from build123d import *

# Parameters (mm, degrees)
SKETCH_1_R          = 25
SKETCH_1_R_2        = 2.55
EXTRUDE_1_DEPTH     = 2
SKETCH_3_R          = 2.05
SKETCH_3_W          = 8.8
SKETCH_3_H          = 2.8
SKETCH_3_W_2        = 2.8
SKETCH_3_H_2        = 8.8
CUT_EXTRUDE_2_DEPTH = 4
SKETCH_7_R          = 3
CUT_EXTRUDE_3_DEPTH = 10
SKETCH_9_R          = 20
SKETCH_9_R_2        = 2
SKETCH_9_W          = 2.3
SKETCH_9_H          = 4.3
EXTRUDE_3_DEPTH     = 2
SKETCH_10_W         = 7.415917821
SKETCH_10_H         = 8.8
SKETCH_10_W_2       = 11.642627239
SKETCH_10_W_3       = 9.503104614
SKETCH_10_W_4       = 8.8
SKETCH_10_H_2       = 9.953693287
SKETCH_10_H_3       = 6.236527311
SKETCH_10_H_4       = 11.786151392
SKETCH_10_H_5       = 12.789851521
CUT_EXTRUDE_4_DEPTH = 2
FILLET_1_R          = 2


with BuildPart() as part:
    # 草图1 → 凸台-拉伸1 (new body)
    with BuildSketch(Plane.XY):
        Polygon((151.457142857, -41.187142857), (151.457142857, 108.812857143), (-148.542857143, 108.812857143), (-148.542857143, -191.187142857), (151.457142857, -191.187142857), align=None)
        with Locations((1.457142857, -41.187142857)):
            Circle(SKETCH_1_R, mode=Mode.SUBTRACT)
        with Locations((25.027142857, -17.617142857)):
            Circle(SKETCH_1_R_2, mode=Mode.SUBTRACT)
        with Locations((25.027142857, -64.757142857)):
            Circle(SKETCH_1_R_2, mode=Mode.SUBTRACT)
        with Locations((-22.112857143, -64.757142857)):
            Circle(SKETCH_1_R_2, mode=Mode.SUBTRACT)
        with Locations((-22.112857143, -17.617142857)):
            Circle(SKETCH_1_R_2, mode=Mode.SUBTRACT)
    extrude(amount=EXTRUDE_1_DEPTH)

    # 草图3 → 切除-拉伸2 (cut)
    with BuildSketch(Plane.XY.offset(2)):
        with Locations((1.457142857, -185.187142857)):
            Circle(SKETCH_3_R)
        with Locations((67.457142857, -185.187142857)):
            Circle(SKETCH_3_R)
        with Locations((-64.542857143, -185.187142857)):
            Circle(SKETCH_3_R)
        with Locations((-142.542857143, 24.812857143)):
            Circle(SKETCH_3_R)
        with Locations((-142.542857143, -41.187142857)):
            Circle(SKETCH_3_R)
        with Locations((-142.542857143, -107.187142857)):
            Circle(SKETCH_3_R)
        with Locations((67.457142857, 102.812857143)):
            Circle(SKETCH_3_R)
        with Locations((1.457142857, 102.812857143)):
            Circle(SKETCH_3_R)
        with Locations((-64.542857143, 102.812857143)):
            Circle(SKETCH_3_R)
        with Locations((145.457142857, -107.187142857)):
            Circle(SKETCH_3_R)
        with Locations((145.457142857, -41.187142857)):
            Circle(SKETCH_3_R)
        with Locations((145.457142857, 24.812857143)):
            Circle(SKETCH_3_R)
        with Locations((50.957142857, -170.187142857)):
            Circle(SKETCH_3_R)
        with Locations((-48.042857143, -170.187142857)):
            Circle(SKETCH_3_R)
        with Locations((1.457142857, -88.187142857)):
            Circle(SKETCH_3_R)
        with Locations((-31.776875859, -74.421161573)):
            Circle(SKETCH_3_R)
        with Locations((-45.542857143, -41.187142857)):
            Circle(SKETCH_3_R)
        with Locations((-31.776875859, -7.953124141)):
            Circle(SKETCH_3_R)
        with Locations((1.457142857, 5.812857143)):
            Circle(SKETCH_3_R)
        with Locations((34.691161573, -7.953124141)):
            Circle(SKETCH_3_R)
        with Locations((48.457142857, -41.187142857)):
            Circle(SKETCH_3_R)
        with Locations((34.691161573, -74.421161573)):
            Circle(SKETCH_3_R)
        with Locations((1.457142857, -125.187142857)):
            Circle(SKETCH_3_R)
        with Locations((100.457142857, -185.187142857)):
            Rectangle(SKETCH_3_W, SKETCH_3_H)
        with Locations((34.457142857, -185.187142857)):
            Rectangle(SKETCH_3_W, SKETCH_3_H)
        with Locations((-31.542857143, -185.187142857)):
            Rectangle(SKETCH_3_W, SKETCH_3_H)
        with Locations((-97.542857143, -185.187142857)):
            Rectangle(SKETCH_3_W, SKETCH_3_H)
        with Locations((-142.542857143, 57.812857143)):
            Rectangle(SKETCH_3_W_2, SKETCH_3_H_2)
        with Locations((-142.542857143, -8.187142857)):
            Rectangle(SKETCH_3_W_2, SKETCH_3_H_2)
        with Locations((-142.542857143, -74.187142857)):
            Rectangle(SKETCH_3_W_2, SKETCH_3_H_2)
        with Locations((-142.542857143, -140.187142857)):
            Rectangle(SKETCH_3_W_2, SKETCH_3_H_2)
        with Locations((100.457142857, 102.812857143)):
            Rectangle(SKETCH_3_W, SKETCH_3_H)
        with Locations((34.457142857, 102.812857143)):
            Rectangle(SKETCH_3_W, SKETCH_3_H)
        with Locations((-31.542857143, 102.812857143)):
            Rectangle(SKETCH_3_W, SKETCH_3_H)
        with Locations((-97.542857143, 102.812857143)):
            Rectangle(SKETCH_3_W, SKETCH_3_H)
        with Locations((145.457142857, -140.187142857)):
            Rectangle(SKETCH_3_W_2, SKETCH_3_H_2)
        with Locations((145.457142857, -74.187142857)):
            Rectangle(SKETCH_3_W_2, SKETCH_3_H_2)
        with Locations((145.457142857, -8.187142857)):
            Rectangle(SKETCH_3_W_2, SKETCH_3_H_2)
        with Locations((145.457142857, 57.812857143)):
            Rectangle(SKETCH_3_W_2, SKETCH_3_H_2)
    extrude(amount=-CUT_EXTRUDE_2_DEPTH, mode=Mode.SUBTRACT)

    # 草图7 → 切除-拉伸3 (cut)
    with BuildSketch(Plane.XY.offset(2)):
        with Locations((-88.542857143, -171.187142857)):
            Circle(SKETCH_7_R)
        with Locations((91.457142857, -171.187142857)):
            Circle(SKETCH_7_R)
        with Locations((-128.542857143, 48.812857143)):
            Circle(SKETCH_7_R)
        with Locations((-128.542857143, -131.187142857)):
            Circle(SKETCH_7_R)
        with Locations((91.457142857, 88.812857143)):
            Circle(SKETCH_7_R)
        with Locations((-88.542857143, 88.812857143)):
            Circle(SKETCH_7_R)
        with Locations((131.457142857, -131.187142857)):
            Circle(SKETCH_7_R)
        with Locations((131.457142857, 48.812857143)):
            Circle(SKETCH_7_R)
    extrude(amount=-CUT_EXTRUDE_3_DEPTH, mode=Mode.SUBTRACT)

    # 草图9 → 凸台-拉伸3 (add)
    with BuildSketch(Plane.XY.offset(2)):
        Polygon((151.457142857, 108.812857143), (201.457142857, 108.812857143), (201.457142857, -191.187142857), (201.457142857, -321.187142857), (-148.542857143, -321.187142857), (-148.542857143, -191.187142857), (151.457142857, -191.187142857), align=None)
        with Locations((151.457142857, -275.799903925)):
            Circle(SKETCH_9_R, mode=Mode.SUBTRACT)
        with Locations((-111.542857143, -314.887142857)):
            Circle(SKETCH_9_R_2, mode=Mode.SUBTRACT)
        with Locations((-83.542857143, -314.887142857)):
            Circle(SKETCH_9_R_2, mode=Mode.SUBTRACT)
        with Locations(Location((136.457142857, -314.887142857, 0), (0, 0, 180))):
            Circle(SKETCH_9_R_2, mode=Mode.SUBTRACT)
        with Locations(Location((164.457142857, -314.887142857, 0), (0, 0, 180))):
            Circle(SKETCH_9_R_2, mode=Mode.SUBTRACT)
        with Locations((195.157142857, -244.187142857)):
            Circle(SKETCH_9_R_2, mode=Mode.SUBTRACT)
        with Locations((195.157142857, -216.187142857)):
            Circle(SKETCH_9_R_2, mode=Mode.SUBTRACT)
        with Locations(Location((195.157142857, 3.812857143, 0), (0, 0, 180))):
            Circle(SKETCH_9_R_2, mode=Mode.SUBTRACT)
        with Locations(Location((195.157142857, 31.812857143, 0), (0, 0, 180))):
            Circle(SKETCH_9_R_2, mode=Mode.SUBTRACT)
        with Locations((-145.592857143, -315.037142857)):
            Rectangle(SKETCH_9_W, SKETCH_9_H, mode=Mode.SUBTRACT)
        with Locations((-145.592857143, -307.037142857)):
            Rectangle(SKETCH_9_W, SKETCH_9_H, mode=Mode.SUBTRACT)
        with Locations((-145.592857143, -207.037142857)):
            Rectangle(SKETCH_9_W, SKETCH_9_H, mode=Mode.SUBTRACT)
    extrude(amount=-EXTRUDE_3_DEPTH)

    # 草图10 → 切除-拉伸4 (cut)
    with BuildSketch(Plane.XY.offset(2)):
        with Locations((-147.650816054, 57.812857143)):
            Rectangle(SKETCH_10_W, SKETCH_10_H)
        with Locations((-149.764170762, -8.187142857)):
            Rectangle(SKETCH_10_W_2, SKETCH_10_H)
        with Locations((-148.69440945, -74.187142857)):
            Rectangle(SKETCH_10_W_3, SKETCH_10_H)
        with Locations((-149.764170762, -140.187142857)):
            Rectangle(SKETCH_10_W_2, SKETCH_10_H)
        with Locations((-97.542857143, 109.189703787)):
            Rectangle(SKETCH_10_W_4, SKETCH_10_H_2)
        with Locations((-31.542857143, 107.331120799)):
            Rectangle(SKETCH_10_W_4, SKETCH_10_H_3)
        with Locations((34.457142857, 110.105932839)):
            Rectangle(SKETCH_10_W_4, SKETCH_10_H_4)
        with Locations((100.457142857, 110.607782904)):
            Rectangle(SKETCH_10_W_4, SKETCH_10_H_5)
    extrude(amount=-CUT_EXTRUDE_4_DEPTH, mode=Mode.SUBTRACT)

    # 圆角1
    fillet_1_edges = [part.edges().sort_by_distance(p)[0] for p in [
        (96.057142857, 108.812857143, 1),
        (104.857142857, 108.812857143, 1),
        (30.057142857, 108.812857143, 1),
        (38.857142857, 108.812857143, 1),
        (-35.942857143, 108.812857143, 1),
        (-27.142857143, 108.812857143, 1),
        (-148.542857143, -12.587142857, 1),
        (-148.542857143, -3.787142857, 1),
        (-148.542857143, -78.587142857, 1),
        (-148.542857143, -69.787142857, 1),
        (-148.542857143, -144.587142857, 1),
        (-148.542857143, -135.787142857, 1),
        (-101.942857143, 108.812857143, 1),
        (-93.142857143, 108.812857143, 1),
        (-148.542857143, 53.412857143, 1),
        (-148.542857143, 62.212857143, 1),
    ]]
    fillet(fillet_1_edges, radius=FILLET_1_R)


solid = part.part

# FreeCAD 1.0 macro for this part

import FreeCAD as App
import Part
import Sketcher
from FreeCAD import Vector
Q = App.Units.Quantity


def edges_at(feature, points):
    """Names of the edges that pass closest to the given points."""
    edges = feature.Shape.Edges
    near = lambda p: min(range(len(edges)), key=lambda i: edges[i].distToShape(Part.Vertex(*p))[0])
    return sorted({f"Edge{near(p) + 1}" for p in points})


def add_polygon(sketch, points):
    """Adds a closed chain of lines whose ends are joined by coincident constraints."""
    first, n = sketch.GeometryCount, len(points)
    for a, b in zip(points, points[1:] + points[:1]):
        sketch.addGeometry(Part.LineSegment(App.Vector(*a, 0), App.Vector(*b, 0)), False)
    for i in range(n):
        sketch.addConstraint(Sketcher.Constraint("Coincident", first + i, 2, first + (i + 1) % n, 1))

doc = App.newDocument("Part")
body = doc.addObject("PartDesign::Body", "Body")

# Sketch on XY plane
sketch1 = doc.addObject("Sketcher::SketchObject", "Sketch")
body.addObject(sketch1)
sketch1.AttachmentSupport = (doc.XY_Plane, [""])
sketch1.MapMode = "FlatFace"
add_polygon(sketch1, [(151.457143, 108.812857), (-148.542857, 108.812857), (-148.542857, -191.187143), (151.457143, -191.187143)])  # lines 0-3
sketch1.addGeometry(Part.Circle(Vector(-22.112857, -64.757143, 0), Vector(0, 0, 1), 2.55), False)  # 4
sketch1.addGeometry(Part.Circle(Vector(25.027143, -64.757143, 0), Vector(0, 0, 1), 2.55), False)  # 5
sketch1.addGeometry(Part.Circle(Vector(1.457143, -41.187143, 0), Vector(0, 0, 1), 25), False)  # 6
sketch1.addGeometry(Part.Circle(Vector(-22.112857, -17.617143, 0), Vector(0, 0, 1), 2.55), False)  # 7
sketch1.addGeometry(Part.Circle(Vector(25.027143, -17.617143, 0), Vector(0, 0, 1), 2.55), False)  # 8
sketch1.addConstraint([
    Sketcher.Constraint("Horizontal", 0),
    Sketcher.Constraint("Vertical", 1),
    Sketcher.Constraint("Horizontal", 2),
    Sketcher.Constraint("Vertical", 3),
    Sketcher.Constraint("Equal", 4, 5),
    Sketcher.Constraint("Equal", 5, 7),
    Sketcher.Constraint("Equal", 7, 8),
    Sketcher.Constraint("Horizontal", 4, 3, 5, 3),
    Sketcher.Constraint("Horizontal", 7, 3, 8, 3),
    Sketcher.Constraint("Vertical", 4, 3, 7, 3),
    Sketcher.Constraint("Vertical", 5, 3, 8, 3),
    Sketcher.Constraint("Equal", 2, 1),
    Sketcher.Constraint("Diameter", 6, Q("50 mm")),
    Sketcher.Constraint("Diameter", 4, Q("5.1 mm")),
    Sketcher.Constraint("DistanceX", 0, 2, 0, 1, Q("300 mm")),
    Sketcher.Constraint("DistanceX", 0, 2, 6, 3, Q("150 mm")),
    Sketcher.Constraint("DistanceY", 6, 3, 0, 2, Q("150 mm")),
    Sketcher.Constraint("DistanceX", 4, 3, 5, 3, Q("47.14 mm")),
    Sketcher.Constraint("DistanceX", 4, 3, 6, 3, Q("23.57 mm")),
    Sketcher.Constraint("DistanceY", 4, 3, 6, 3, Q("23.57 mm")),
    Sketcher.Constraint("DistanceY", 6, 3, 7, 3, Q("23.57 mm")),
    Sketcher.Constraint("DistanceX", 4, 3, -1, 1, Q("22.112857 mm")),
    Sketcher.Constraint("DistanceY", 4, 3, -1, 1, Q("64.757143 mm")),
])
pad1 = doc.addObject("PartDesign::Pad", "Pad")
body.addObject(pad1)
pad1.Profile = sketch1
pad1.Length = 2

# Sketch on XY plane
sketch2 = doc.addObject("Sketcher::SketchObject", "Sketch001")
body.addObject(sketch2)
sketch2.AttachmentSupport = (doc.XY_Plane, [""])
sketch2.MapMode = "FlatFace"
sketch2.AttachmentOffset = App.Placement(Vector(0, 0, 2), App.Rotation())
sketch2.addGeometry(Part.Circle(Vector(1.457143, -185.187143, 0), Vector(0, 0, 1), 2.05), False)  # 0
sketch2.addGeometry(Part.Circle(Vector(67.457143, -185.187143, 0), Vector(0, 0, 1), 2.05), False)  # 1
sketch2.addGeometry(Part.Circle(Vector(-64.542857, -185.187143, 0), Vector(0, 0, 1), 2.05), False)  # 2
sketch2.addGeometry(Part.Circle(Vector(-142.542857, 24.812857, 0), Vector(0, 0, 1), 2.05), False)  # 3
sketch2.addGeometry(Part.Circle(Vector(-142.542857, -41.187143, 0), Vector(0, 0, 1), 2.05), False)  # 4
sketch2.addGeometry(Part.Circle(Vector(-142.542857, -107.187143, 0), Vector(0, 0, 1), 2.05), False)  # 5
sketch2.addGeometry(Part.Circle(Vector(67.457143, 102.812857, 0), Vector(0, 0, 1), 2.05), False)  # 6
sketch2.addGeometry(Part.Circle(Vector(1.457143, 102.812857, 0), Vector(0, 0, 1), 2.05), False)  # 7
sketch2.addGeometry(Part.Circle(Vector(-64.542857, 102.812857, 0), Vector(0, 0, 1), 2.05), False)  # 8
sketch2.addGeometry(Part.Circle(Vector(145.457143, -107.187143, 0), Vector(0, 0, 1), 2.05), False)  # 9
sketch2.addGeometry(Part.Circle(Vector(145.457143, -41.187143, 0), Vector(0, 0, 1), 2.05), False)  # 10
sketch2.addGeometry(Part.Circle(Vector(145.457143, 24.812857, 0), Vector(0, 0, 1), 2.05), False)  # 11
sketch2.addGeometry(Part.Circle(Vector(50.957143, -170.187143, 0), Vector(0, 0, 1), 2.05), False)  # 12
sketch2.addGeometry(Part.Circle(Vector(-48.042857, -170.187143, 0), Vector(0, 0, 1), 2.05), False)  # 13
sketch2.addGeometry(Part.Circle(Vector(1.457143, -88.187143, 0), Vector(0, 0, 1), 2.05), False)  # 14
sketch2.addGeometry(Part.Circle(Vector(-31.776876, -74.421162, 0), Vector(0, 0, 1), 2.05), False)  # 15
sketch2.addGeometry(Part.Circle(Vector(-45.542857, -41.187143, 0), Vector(0, 0, 1), 2.05), False)  # 16
sketch2.addGeometry(Part.Circle(Vector(-31.776876, -7.953124, 0), Vector(0, 0, 1), 2.05), False)  # 17
sketch2.addGeometry(Part.Circle(Vector(1.457143, 5.812857, 0), Vector(0, 0, 1), 2.05), False)  # 18
sketch2.addGeometry(Part.Circle(Vector(34.691162, -7.953124, 0), Vector(0, 0, 1), 2.05), False)  # 19
sketch2.addGeometry(Part.Circle(Vector(48.457143, -41.187143, 0), Vector(0, 0, 1), 2.05), False)  # 20
sketch2.addGeometry(Part.Circle(Vector(34.691162, -74.421162, 0), Vector(0, 0, 1), 2.05), False)  # 21
sketch2.addGeometry(Part.Circle(Vector(1.457143, -125.187143, 0), Vector(0, 0, 1), 2.05), False)  # 22
add_polygon(sketch2, [(96.057143, -183.787143), (96.057143, -186.587143), (104.857143, -186.587143), (104.857143, -183.787143)])  # lines 23-26
add_polygon(sketch2, [(30.057143, -183.787143), (30.057143, -186.587143), (38.857143, -186.587143), (38.857143, -183.787143)])  # lines 27-30
add_polygon(sketch2, [(-35.942857, -183.787143), (-35.942857, -186.587143), (-27.142857, -186.587143), (-27.142857, -183.787143)])  # lines 31-34
add_polygon(sketch2, [(-101.942857, -183.787143), (-101.942857, -186.587143), (-93.142857, -186.587143), (-93.142857, -183.787143)])  # lines 35-38
add_polygon(sketch2, [(-143.942857, 62.212857), (-143.942857, 53.412857), (-141.142857, 53.412857), (-141.142857, 62.212857)])  # lines 39-42
add_polygon(sketch2, [(-143.942857, -3.787143), (-143.942857, -12.587143), (-141.142857, -12.587143), (-141.142857, -3.787143)])  # lines 43-46
add_polygon(sketch2, [(-143.942857, -69.787143), (-143.942857, -78.587143), (-141.142857, -78.587143), (-141.142857, -69.787143)])  # lines 47-50
add_polygon(sketch2, [(-143.942857, -135.787143), (-143.942857, -144.587143), (-141.142857, -144.587143), (-141.142857, -135.787143)])  # lines 51-54
add_polygon(sketch2, [(96.057143, 104.212857), (96.057143, 101.412857), (104.857143, 101.412857), (104.857143, 104.212857)])  # lines 55-58
add_polygon(sketch2, [(30.057143, 104.212857), (30.057143, 101.412857), (38.857143, 101.412857), (38.857143, 104.212857)])  # lines 59-62
add_polygon(sketch2, [(-35.942857, 104.212857), (-35.942857, 101.412857), (-27.142857, 101.412857), (-27.142857, 104.212857)])  # lines 63-66
add_polygon(sketch2, [(-101.942857, 104.212857), (-101.942857, 101.412857), (-93.142857, 101.412857), (-93.142857, 104.212857)])  # lines 67-70
add_polygon(sketch2, [(144.057143, -135.787143), (144.057143, -144.587143), (146.857143, -144.587143), (146.857143, -135.787143)])  # lines 71-74
add_polygon(sketch2, [(144.057143, -69.787143), (144.057143, -78.587143), (146.857143, -78.587143), (146.857143, -69.787143)])  # lines 75-78
add_polygon(sketch2, [(144.057143, -3.787143), (144.057143, -12.587143), (146.857143, -12.587143), (146.857143, -3.787143)])  # lines 79-82
add_polygon(sketch2, [(144.057143, 62.212857), (144.057143, 53.412857), (146.857143, 53.412857), (146.857143, 62.212857)])  # lines 83-86
sketch2.addConstraint([
    Sketcher.Constraint("Vertical", 23),
    Sketcher.Constraint("Horizontal", 24),
    Sketcher.Constraint("Vertical", 25),
    Sketcher.Constraint("Horizontal", 26),
    Sketcher.Constraint("Vertical", 27),
    Sketcher.Constraint("Horizontal", 28),
    Sketcher.Constraint("Vertical", 29),
    Sketcher.Constraint("Horizontal", 30),
    Sketcher.Constraint("Vertical", 31),
    Sketcher.Constraint("Horizontal", 32),
    Sketcher.Constraint("Vertical", 33),
    Sketcher.Constraint("Horizontal", 34),
    Sketcher.Constraint("Vertical", 35),
    Sketcher.Constraint("Horizontal", 36),
    Sketcher.Constraint("Vertical", 37),
    Sketcher.Constraint("Horizontal", 38),
    Sketcher.Constraint("Vertical", 39),
    Sketcher.Constraint("Horizontal", 40),
    Sketcher.Constraint("Vertical", 41),
    Sketcher.Constraint("Horizontal", 42),
    Sketcher.Constraint("Vertical", 43),
    Sketcher.Constraint("Horizontal", 44),
    Sketcher.Constraint("Vertical", 45),
    Sketcher.Constraint("Horizontal", 46),
    Sketcher.Constraint("Vertical", 47),
    Sketcher.Constraint("Horizontal", 48),
    Sketcher.Constraint("Vertical", 49),
    Sketcher.Constraint("Horizontal", 50),
    Sketcher.Constraint("Vertical", 51),
    Sketcher.Constraint("Horizontal", 52),
    Sketcher.Constraint("Vertical", 53),
    Sketcher.Constraint("Horizontal", 54),
    Sketcher.Constraint("Vertical", 55),
    Sketcher.Constraint("Horizontal", 56),
    Sketcher.Constraint("Vertical", 57),
    Sketcher.Constraint("Horizontal", 58),
    Sketcher.Constraint("Vertical", 59),
    Sketcher.Constraint("Horizontal", 60),
    Sketcher.Constraint("Vertical", 61),
    Sketcher.Constraint("Horizontal", 62),
    Sketcher.Constraint("Vertical", 63),
    Sketcher.Constraint("Horizontal", 64),
    Sketcher.Constraint("Vertical", 65),
    Sketcher.Constraint("Horizontal", 66),
    Sketcher.Constraint("Vertical", 67),
    Sketcher.Constraint("Horizontal", 68),
    Sketcher.Constraint("Vertical", 69),
    Sketcher.Constraint("Horizontal", 70),
    Sketcher.Constraint("Vertical", 71),
    Sketcher.Constraint("Horizontal", 72),
    Sketcher.Constraint("Vertical", 73),
    Sketcher.Constraint("Horizontal", 74),
    Sketcher.Constraint("Vertical", 75),
    Sketcher.Constraint("Horizontal", 76),
    Sketcher.Constraint("Vertical", 77),
    Sketcher.Constraint("Horizontal", 78),
    Sketcher.Constraint("Vertical", 79),
    Sketcher.Constraint("Horizontal", 80),
    Sketcher.Constraint("Vertical", 81),
    Sketcher.Constraint("Horizontal", 82),
    Sketcher.Constraint("Vertical", 83),
    Sketcher.Constraint("Horizontal", 84),
    Sketcher.Constraint("Vertical", 85),
    Sketcher.Constraint("Horizontal", 86),
    Sketcher.Constraint("Equal", 0, 1),
    Sketcher.Constraint("Equal", 1, 2),
    Sketcher.Constraint("Equal", 2, 3),
    Sketcher.Constraint("Equal", 3, 4),
    Sketcher.Constraint("Equal", 4, 5),
    Sketcher.Constraint("Equal", 5, 6),
    Sketcher.Constraint("Equal", 6, 7),
    Sketcher.Constraint("Equal", 7, 8),
    Sketcher.Constraint("Equal", 8, 9),
    Sketcher.Constraint("Equal", 9, 10),
    Sketcher.Constraint("Equal", 10, 11),
    Sketcher.Constraint("Equal", 11, 12),
    Sketcher.Constraint("Equal", 12, 13),
    Sketcher.Constraint("Equal", 13, 14),
    Sketcher.Constraint("Equal", 14, 15),
    Sketcher.Constraint("Equal", 15, 16),
    Sketcher.Constraint("Equal", 16, 17),
    Sketcher.Constraint("Equal", 17, 18),
    Sketcher.Constraint("Equal", 18, 19),
    Sketcher.Constraint("Equal", 19, 20),
    Sketcher.Constraint("Equal", 20, 21),
    Sketcher.Constraint("Equal", 21, 22),
    Sketcher.Constraint("Horizontal", 0, 3, 1, 3),
    Sketcher.Constraint("Horizontal", 1, 3, 2, 3),
    Sketcher.Constraint("Horizontal", 6, 3, 7, 3),
    Sketcher.Constraint("Horizontal", 7, 3, 8, 3),
    Sketcher.Constraint("Horizontal", 5, 3, 9, 3),
    Sketcher.Constraint("Horizontal", 4, 3, 10, 3),
    Sketcher.Constraint("Horizontal", 3, 3, 11, 3),
    Sketcher.Constraint("Horizontal", 12, 3, 13, 3),
    Sketcher.Constraint("Horizontal", 10, 3, 16, 3),
    Sketcher.Constraint("Horizontal", 17, 3, 19, 3),
    Sketcher.Constraint("Horizontal", 16, 3, 20, 3),
    Sketcher.Constraint("Horizontal", 15, 3, 21, 3),
    Sketcher.Constraint("Horizontal", 24, 2, 27, 2),
    Sketcher.Constraint("Horizontal", 26, 2, 29, 2),
    Sketcher.Constraint("Horizontal", 28, 2, 31, 2),
    Sketcher.Constraint("Horizontal", 30, 2, 33, 2),
    Sketcher.Constraint("Horizontal", 32, 2, 35, 2),
    Sketcher.Constraint("Horizontal", 34, 2, 37, 2),
    Sketcher.Constraint("Horizontal", 56, 2, 59, 2),
    Sketcher.Constraint("Horizontal", 58, 2, 61, 2),
    Sketcher.Constraint("Horizontal", 60, 2, 63, 2),
    Sketcher.Constraint("Horizontal", 62, 2, 65, 2),
    Sketcher.Constraint("Horizontal", 64, 2, 67, 2),
    Sketcher.Constraint("Horizontal", 66, 2, 69, 2),
    Sketcher.Constraint("Horizontal", 52, 2, 71, 2),
    Sketcher.Constraint("Horizontal", 54, 2, 73, 2),
    Sketcher.Constraint("Horizontal", 48, 2, 75, 2),
    Sketcher.Constraint("Horizontal", 50, 2, 77, 2),
    Sketcher.Constraint("Horizontal", 44, 2, 79, 2),
    Sketcher.Constraint("Horizontal", 46, 2, 81, 2),
    Sketcher.Constraint("Horizontal", 40, 2, 83, 2),
    Sketcher.Constraint("Horizontal", 42, 2, 85, 2),
    Sketcher.Constraint("Vertical", 3, 3, 4, 3),
    Sketcher.Constraint("Vertical", 4, 3, 5, 3),
    Sketcher.Constraint("Vertical", 1, 3, 6, 3),
    Sketcher.Constraint("Vertical", 0, 3, 7, 3),
    Sketcher.Constraint("Vertical", 2, 3, 8, 3),
    Sketcher.Constraint("Vertical", 9, 3, 10, 3),
    Sketcher.Constraint("Vertical", 10, 3, 11, 3),
    Sketcher.Constraint("Vertical", 7, 3, 14, 3),
    Sketcher.Constraint("Vertical", 15, 3, 17, 3),
    Sketcher.Constraint("Vertical", 14, 3, 18, 3),
    Sketcher.Constraint("Vertical", 19, 3, 21, 3),
    Sketcher.Constraint("Vertical", 18, 3, 22, 3),
    Sketcher.Constraint("Vertical", 42, 2, 43, 2),
    Sketcher.Constraint("Vertical", 41, 2, 44, 2),
    Sketcher.Constraint("Vertical", 46, 2, 47, 2),
    Sketcher.Constraint("Vertical", 45, 2, 48, 2),
    Sketcher.Constraint("Vertical", 50, 2, 51, 2),
    Sketcher.Constraint("Vertical", 49, 2, 52, 2),
    Sketcher.Constraint("Vertical", 26, 2, 55, 2),
    Sketcher.Constraint("Vertical", 25, 2, 56, 2),
    Sketcher.Constraint("Vertical", 30, 2, 59, 2),
    Sketcher.Constraint("Vertical", 29, 2, 60, 2),
    Sketcher.Constraint("Vertical", 34, 2, 63, 2),
    Sketcher.Constraint("Vertical", 33, 2, 64, 2),
    Sketcher.Constraint("Vertical", 38, 2, 67, 2),
    Sketcher.Constraint("Vertical", 37, 2, 68, 2),
    Sketcher.Constraint("Vertical", 74, 2, 75, 2),
    Sketcher.Constraint("Vertical", 73, 2, 76, 2),
    Sketcher.Constraint("Vertical", 78, 2, 79, 2),
    Sketcher.Constraint("Vertical", 77, 2, 80, 2),
    Sketcher.Constraint("Vertical", 82, 2, 83, 2),
    Sketcher.Constraint("Vertical", 81, 2, 84, 2),
    Sketcher.Constraint("Equal", 26, 28),
    Sketcher.Constraint("Equal", 30, 32),
    Sketcher.Constraint("Equal", 34, 36),
    Sketcher.Constraint("Equal", 54, 72),
    Sketcher.Constraint("Equal", 86, 23),
    Sketcher.Constraint("Equal", 70, 39),
    Sketcher.Constraint("Equal", 41, 43),
    Sketcher.Constraint("Equal", 45, 47),
    Sketcher.Constraint("Equal", 49, 51),
    Sketcher.Constraint("Equal", 37, 55),
    Sketcher.Constraint("Diameter", 0, Q("4.1 mm")),
    Sketcher.Constraint("DistanceX", 24, 1, 24, 2, Q("8.8 mm")),
    Sketcher.Constraint("DistanceX", 40, 1, 40, 2, Q("2.8 mm")),
    Sketcher.Constraint("DistanceY", 15, 3, -1, 1, Q("74.421162 mm")),
    Sketcher.Constraint("DistanceX", -1, 1, 19, 3, Q("34.691162 mm")),
    Sketcher.Constraint("DistanceX", -1, 1, 0, 3, Q("1.457143 mm")),
    Sketcher.Constraint("DistanceY", 0, 3, -1, 1, Q("185.187143 mm")),
    Sketcher.Constraint("DistanceX", -1, 1, 1, 3, Q("67.457143 mm")),
    Sketcher.Constraint("DistanceX", 2, 3, -1, 1, Q("64.542857 mm")),
    Sketcher.Constraint("DistanceX", 3, 3, -1, 1, Q("142.542857 mm")),
    Sketcher.Constraint("DistanceY", -1, 1, 3, 3, Q("24.812857 mm")),
    Sketcher.Constraint("DistanceY", 4, 3, -1, 1, Q("41.187143 mm")),
    Sketcher.Constraint("DistanceY", 5, 3, -1, 1, Q("107.187143 mm")),
    Sketcher.Constraint("DistanceY", -1, 1, 6, 3, Q("102.812857 mm")),
    Sketcher.Constraint("DistanceX", -1, 1, 9, 3, Q("145.457143 mm")),
    Sketcher.Constraint("DistanceX", -1, 1, 12, 3, Q("50.957143 mm")),
    Sketcher.Constraint("DistanceY", 12, 3, -1, 1, Q("170.187143 mm")),
    Sketcher.Constraint("DistanceX", 13, 3, -1, 1, Q("48.042857 mm")),
    Sketcher.Constraint("DistanceY", 14, 3, -1, 1, Q("88.187143 mm")),
    Sketcher.Constraint("DistanceX", 15, 3, -1, 1, Q("31.776876 mm")),
    Sketcher.Constraint("DistanceX", 16, 3, -1, 1, Q("45.542857 mm")),
    Sketcher.Constraint("DistanceY", 17, 3, -1, 1, Q("7.953124 mm")),
    Sketcher.Constraint("DistanceY", -1, 1, 18, 3, Q("5.812857 mm")),
    Sketcher.Constraint("DistanceX", -1, 1, 20, 3, Q("48.457143 mm")),
    Sketcher.Constraint("DistanceY", 22, 3, -1, 1, Q("125.187143 mm")),
    Sketcher.Constraint("DistanceX", -1, 1, 23, 2, Q("96.057143 mm")),
    Sketcher.Constraint("DistanceY", 23, 2, -1, 1, Q("186.587143 mm")),
    Sketcher.Constraint("DistanceX", -1, 1, 27, 2, Q("30.057143 mm")),
    Sketcher.Constraint("DistanceX", 31, 2, -1, 1, Q("35.942857 mm")),
    Sketcher.Constraint("DistanceX", 35, 2, -1, 1, Q("101.942857 mm")),
    Sketcher.Constraint("DistanceX", 39, 2, -1, 1, Q("143.942857 mm")),
    Sketcher.Constraint("DistanceY", -1, 1, 39, 2, Q("53.412857 mm")),
    Sketcher.Constraint("DistanceY", 43, 2, -1, 1, Q("12.587143 mm")),
    Sketcher.Constraint("DistanceY", 47, 2, -1, 1, Q("78.587143 mm")),
    Sketcher.Constraint("DistanceY", 51, 2, -1, 1, Q("144.587143 mm")),
    Sketcher.Constraint("DistanceY", -1, 1, 55, 2, Q("101.412857 mm")),
    Sketcher.Constraint("DistanceX", -1, 1, 71, 2, Q("144.057143 mm")),
])
pocket1 = doc.addObject("PartDesign::Pocket", "Pocket")
body.addObject(pocket1)
pocket1.Profile = sketch2
pocket1.Length = 4

# Sketch on XY plane
sketch3 = doc.addObject("Sketcher::SketchObject", "Sketch002")
body.addObject(sketch3)
sketch3.AttachmentSupport = (doc.XY_Plane, [""])
sketch3.MapMode = "FlatFace"
sketch3.AttachmentOffset = App.Placement(Vector(0, 0, 2), App.Rotation())
sketch3.addGeometry([
    Part.Circle(Vector(-88.542857, -171.187143, 0), Vector(0, 0, 1), 3),  # 0
    Part.Circle(Vector(91.457143, -171.187143, 0), Vector(0, 0, 1), 3),  # 1
    Part.Circle(Vector(-128.542857, 48.812857, 0), Vector(0, 0, 1), 3),  # 2
    Part.Circle(Vector(-128.542857, -131.187143, 0), Vector(0, 0, 1), 3),  # 3
    Part.Circle(Vector(91.457143, 88.812857, 0), Vector(0, 0, 1), 3),  # 4
    Part.Circle(Vector(-88.542857, 88.812857, 0), Vector(0, 0, 1), 3),  # 5
    Part.Circle(Vector(131.457143, -131.187143, 0), Vector(0, 0, 1), 3),  # 6
    Part.Circle(Vector(131.457143, 48.812857, 0), Vector(0, 0, 1), 3),  # 7
], False)
sketch3.addConstraint([
    Sketcher.Constraint("Equal", 0, 1),
    Sketcher.Constraint("Equal", 1, 2),
    Sketcher.Constraint("Equal", 2, 3),
    Sketcher.Constraint("Equal", 3, 4),
    Sketcher.Constraint("Equal", 4, 5),
    Sketcher.Constraint("Equal", 5, 6),
    Sketcher.Constraint("Equal", 6, 7),
    Sketcher.Constraint("Horizontal", 0, 3, 1, 3),
    Sketcher.Constraint("Horizontal", 4, 3, 5, 3),
    Sketcher.Constraint("Horizontal", 3, 3, 6, 3),
    Sketcher.Constraint("Horizontal", 2, 3, 7, 3),
    Sketcher.Constraint("Vertical", 2, 3, 3, 3),
    Sketcher.Constraint("Vertical", 1, 3, 4, 3),
    Sketcher.Constraint("Vertical", 0, 3, 5, 3),
    Sketcher.Constraint("Vertical", 6, 3, 7, 3),
    Sketcher.Constraint("Diameter", 0, Q("6 mm")),
    Sketcher.Constraint("DistanceX", 0, 3, 1, 3, Q("180 mm")),
    Sketcher.Constraint("DistanceX", 2, 3, 0, 3, Q("40 mm")),
    Sketcher.Constraint("DistanceY", 0, 3, 2, 3, Q("220 mm")),
    Sketcher.Constraint("DistanceY", 0, 3, 3, 3, Q("40 mm")),
    Sketcher.Constraint("DistanceY", 2, 3, 4, 3, Q("40 mm")),
    Sketcher.Constraint("DistanceX", 1, 3, 6, 3, Q("40 mm")),
    Sketcher.Constraint("DistanceX", 0, 3, -1, 1, Q("88.542857 mm")),
    Sketcher.Constraint("DistanceY", 0, 3, -1, 1, Q("171.187143 mm")),
])
pocket2 = doc.addObject("PartDesign::Pocket", "Pocket001")
body.addObject(pocket2)
pocket2.Profile = sketch3
pocket2.Length = 10

# Sketch on XY plane
sketch4 = doc.addObject("Sketcher::SketchObject", "Sketch003")
body.addObject(sketch4)
sketch4.AttachmentSupport = (doc.XY_Plane, [""])
sketch4.MapMode = "FlatFace"
sketch4.AttachmentOffset = App.Placement(Vector(0, 0, 2), App.Rotation())
add_polygon(sketch4, [(201.457143, 108.812857), (151.457143, 108.812857), (151.457143, -191.187143), (-148.542857, -191.187143), (-148.542857, -321.187143), (201.457143, -321.187143)])  # lines 0-5
sketch4.addGeometry(Part.Circle(Vector(164.457143, -314.887143, 0), Vector(0, 0, 1), 2), False)  # 6
sketch4.addGeometry(Part.Circle(Vector(136.457143, -314.887143, 0), Vector(0, 0, 1), 2), False)  # 7
sketch4.addGeometry(Part.Circle(Vector(151.457143, -275.799904, 0), Vector(0, 0, 1), 20), False)  # 8
sketch4.addGeometry(Part.Circle(Vector(195.157143, -244.187143, 0), Vector(0, 0, 1), 2), False)  # 9
sketch4.addGeometry(Part.Circle(Vector(195.157143, -216.187143, 0), Vector(0, 0, 1), 2), False)  # 10
sketch4.addGeometry(Part.Circle(Vector(-83.542857, -314.887143, 0), Vector(0, 0, 1), 2), False)  # 11
sketch4.addGeometry(Part.Circle(Vector(-111.542857, -314.887143, 0), Vector(0, 0, 1), 2), False)  # 12
add_polygon(sketch4, [(-146.742857, -317.187143), (-146.742857, -312.887143), (-144.442857, -312.887143), (-144.442857, -317.187143)])  # lines 13-16
add_polygon(sketch4, [(-146.742857, -309.187143), (-146.742857, -304.887143), (-144.442857, -304.887143), (-144.442857, -309.187143)])  # lines 17-20
add_polygon(sketch4, [(-146.742857, -209.187143), (-146.742857, -204.887143), (-144.442857, -204.887143), (-144.442857, -209.187143)])  # lines 21-24
sketch4.addGeometry(Part.Circle(Vector(195.157143, 3.812857, 0), Vector(0, 0, 1), 2), False)  # 25
sketch4.addGeometry(Part.Circle(Vector(195.157143, 31.812857, 0), Vector(0, 0, 1), 2), False)  # 26
sketch4.addConstraint([
    Sketcher.Constraint("Horizontal", 0),
    Sketcher.Constraint("Vertical", 1),
    Sketcher.Constraint("Horizontal", 2),
    Sketcher.Constraint("Vertical", 3),
    Sketcher.Constraint("Horizontal", 4),
    Sketcher.Constraint("Vertical", 5),
    Sketcher.Constraint("Vertical", 13),
    Sketcher.Constraint("Horizontal", 14),
    Sketcher.Constraint("Vertical", 15),
    Sketcher.Constraint("Horizontal", 16),
    Sketcher.Constraint("Vertical", 17),
    Sketcher.Constraint("Horizontal", 18),
    Sketcher.Constraint("Vertical", 19),
    Sketcher.Constraint("Horizontal", 20),
    Sketcher.Constraint("Vertical", 21),
    Sketcher.Constraint("Horizontal", 22),
    Sketcher.Constraint("Vertical", 23),
    Sketcher.Constraint("Horizontal", 24),
    Sketcher.Constraint("Equal", 6, 7),
    Sketcher.Constraint("Equal", 7, 9),
    Sketcher.Constraint("Equal", 9, 10),
    Sketcher.Constraint("Equal", 10, 11),
    Sketcher.Constraint("Equal", 11, 12),
    Sketcher.Constraint("Equal", 12, 25),
    Sketcher.Constraint("Equal", 25, 26),
    Sketcher.Constraint("Horizontal", 6, 3, 7, 3),
    Sketcher.Constraint("Horizontal", 7, 3, 11, 3),
    Sketcher.Constraint("Horizontal", 11, 3, 12, 3),
    Sketcher.Constraint("Vertical", 9, 3, 10, 3),
    Sketcher.Constraint("Vertical", 10, 3, 25, 3),
    Sketcher.Constraint("Vertical", 25, 3, 26, 3),
    Sketcher.Constraint("Vertical", 8, 3, 0, 2),
    Sketcher.Constraint("Vertical", 16, 2, 17, 2),
    Sketcher.Constraint("Vertical", 15, 2, 18, 2),
    Sketcher.Constraint("Vertical", 20, 2, 21, 2),
    Sketcher.Constraint("Vertical", 19, 2, 22, 2),
    Sketcher.Constraint("Equal", 2, 1),
    Sketcher.Constraint("Equal", 15, 17),
    Sketcher.Constraint("Equal", 19, 21),
    Sketcher.Constraint("Diameter", 6, Q("4 mm")),
    Sketcher.Constraint("Diameter", 8, Q("40 mm")),
    Sketcher.Constraint("DistanceX", 0, 2, 0, 1, Q("50 mm")),
    Sketcher.Constraint("DistanceX", 2, 2, 2, 1, Q("300 mm")),
    Sketcher.Constraint("DistanceY", 3, 2, 3, 1, Q("130 mm")),
    Sketcher.Constraint("DistanceX", 14, 1, 14, 2, Q("2.3 mm")),
    Sketcher.Constraint("DistanceY", 13, 1, 13, 2, Q("4.3 mm")),
    Sketcher.Constraint("DistanceX", 7, 3, 6, 3, Q("28 mm")),
    Sketcher.Constraint("DistanceX", 8, 3, 6, 3, Q("13 mm")),
    Sketcher.Constraint("DistanceY", 9, 3, 10, 3, Q("28 mm")),
    Sketcher.Constraint("DistanceX", 11, 3, 7, 3, Q("220 mm")),
    Sketcher.Constraint("DistanceX", 12, 3, 11, 3, Q("28 mm")),
    Sketcher.Constraint("DistanceY", 10, 3, 25, 3, Q("220 mm")),
    Sketcher.Constraint("DistanceY", 25, 3, 26, 3, Q("28 mm")),
    Sketcher.Constraint("DistanceY", 26, 3, 0, 2, Q("77 mm")),
    Sketcher.Constraint("DistanceY", 12, 3, 13, 2, Q("2 mm")),
    Sketcher.Constraint("DistanceY", 3, 2, 15, 2, Q("4 mm")),
    Sketcher.Constraint("DistanceY", 13, 2, 17, 2, Q("8 mm")),
    Sketcher.Constraint("DistanceY", 17, 2, 21, 2, Q("100 mm")),
    Sketcher.Constraint("DistanceX", 8, 3, 9, 3, Q("43.7 mm")),
    Sketcher.Constraint("DistanceX", 3, 2, 13, 2, Q("1.8 mm")),
    Sketcher.Constraint("DistanceY", 6, 3, 8, 3, Q("39.087239 mm")),
    Sketcher.Constraint("DistanceX", -1, 1, 6, 3, Q("164.457143 mm")),
    Sketcher.Constraint("DistanceY", 6, 3, -1, 1, Q("314.887143 mm")),
])
pad2 = doc.addObject("PartDesign::Pad", "Pad001")
body.addObject(pad2)
pad2.Profile = sketch4
pad2.Length = 2
pad2.Reversed = True

# Sketch on XY plane
sketch5 = doc.addObject("Sketcher::SketchObject", "Sketch004")
body.addObject(sketch5)
sketch5.AttachmentSupport = (doc.XY_Plane, [""])
sketch5.MapMode = "FlatFace"
sketch5.AttachmentOffset = App.Placement(Vector(0, 0, 2), App.Rotation())
add_polygon(sketch5, [(-151.358775, 62.212857), (-151.358775, 53.412857), (-143.942857, 53.412857), (-143.942857, 62.212857)])  # lines 0-3
add_polygon(sketch5, [(-155.585484, -3.787143), (-155.585484, -12.587143), (-143.942857, -12.587143), (-143.942857, -3.787143)])  # lines 4-7
add_polygon(sketch5, [(-153.445962, -69.787143), (-153.445962, -78.587143), (-143.942857, -78.587143), (-143.942857, -69.787143)])  # lines 8-11
add_polygon(sketch5, [(-155.585484, -135.787143), (-155.585484, -144.587143), (-143.942857, -144.587143), (-143.942857, -135.787143)])  # lines 12-15
add_polygon(sketch5, [(-101.942857, 114.16655), (-101.942857, 104.212857), (-93.142857, 104.212857), (-93.142857, 114.16655)])  # lines 16-19
add_polygon(sketch5, [(-35.942857, 110.449384), (-35.942857, 104.212857), (-27.142857, 104.212857), (-27.142857, 110.449384)])  # lines 20-23
add_polygon(sketch5, [(30.057143, 115.999009), (30.057143, 104.212857), (38.857143, 104.212857), (38.857143, 115.999009)])  # lines 24-27
add_polygon(sketch5, [(96.057143, 117.002709), (96.057143, 104.212857), (104.857143, 104.212857), (104.857143, 117.002709)])  # lines 28-31
sketch5.addConstraint([
    Sketcher.Constraint("Vertical", 0),
    Sketcher.Constraint("Horizontal", 1),
    Sketcher.Constraint("Vertical", 2),
    Sketcher.Constraint("Horizontal", 3),
    Sketcher.Constraint("Vertical", 4),
    Sketcher.Constraint("Horizontal", 5),
    Sketcher.Constraint("Vertical", 6),
    Sketcher.Constraint("Horizontal", 7),
    Sketcher.Constraint("Vertical", 8),
    Sketcher.Constraint("Horizontal", 9),
    Sketcher.Constraint("Vertical", 10),
    Sketcher.Constraint("Horizontal", 11),
    Sketcher.Constraint("Vertical", 12),
    Sketcher.Constraint("Horizontal", 13),
    Sketcher.Constraint("Vertical", 14),
    Sketcher.Constraint("Horizontal", 15),
    Sketcher.Constraint("Vertical", 16),
    Sketcher.Constraint("Horizontal", 17),
    Sketcher.Constraint("Vertical", 18),
    Sketcher.Constraint("Horizontal", 19),
    Sketcher.Constraint("Vertical", 20),
    Sketcher.Constraint("Horizontal", 21),
    Sketcher.Constraint("Vertical", 22),
    Sketcher.Constraint("Horizontal", 23),
    Sketcher.Constraint("Vertical", 24),
    Sketcher.Constraint("Horizontal", 25),
    Sketcher.Constraint("Vertical", 26),
    Sketcher.Constraint("Horizontal", 27),
    Sketcher.Constraint("Vertical", 28),
    Sketcher.Constraint("Horizontal", 29),
    Sketcher.Constraint("Vertical", 30),
    Sketcher.Constraint("Horizontal", 31),
    Sketcher.Constraint("Horizontal", 17, 2, 20, 2),
    Sketcher.Constraint("Horizontal", 21, 2, 24, 2),
    Sketcher.Constraint("Horizontal", 25, 2, 28, 2),
    Sketcher.Constraint("Vertical", 2, 2, 5, 2),
    Sketcher.Constraint("Vertical", 6, 2, 9, 2),
    Sketcher.Constraint("Vertical", 7, 2, 12, 2),
    Sketcher.Constraint("Vertical", 10, 2, 13, 2),
    Sketcher.Constraint("Equal", 19, 21),
    Sketcher.Constraint("Equal", 23, 25),
    Sketcher.Constraint("Equal", 27, 29),
    Sketcher.Constraint("Equal", 31, 0),
    Sketcher.Constraint("Equal", 2, 4),
    Sketcher.Constraint("Equal", 6, 8),
    Sketcher.Constraint("Equal", 10, 12),
    Sketcher.Constraint("DistanceX", 17, 1, 17, 2, Q("8.8 mm")),
    Sketcher.Constraint("DistanceY", 4, 2, 0, 2, Q("66 mm")),
    Sketcher.Constraint("DistanceY", 8, 2, 4, 2, Q("66 mm")),
    Sketcher.Constraint("DistanceY", 12, 2, 8, 2, Q("66 mm")),
    Sketcher.Constraint("DistanceX", 2, 2, 16, 2, Q("42 mm")),
    Sketcher.Constraint("DistanceY", 2, 2, 16, 2, Q("42 mm")),
    Sketcher.Constraint("DistanceX", 16, 2, 20, 2, Q("66 mm")),
    Sketcher.Constraint("DistanceX", 20, 2, 24, 2, Q("66 mm")),
    Sketcher.Constraint("DistanceX", 24, 2, 28, 2, Q("66 mm")),
    Sketcher.Constraint("DistanceY", 24, 2, 24, 1, Q("11.786151 mm")),
    Sketcher.Constraint("DistanceY", 28, 2, 28, 1, Q("12.789852 mm")),
    Sketcher.Constraint("DistanceX", 1, 1, 1, 2, Q("7.415918 mm")),
    Sketcher.Constraint("DistanceX", 5, 1, 5, 2, Q("11.642627 mm")),
    Sketcher.Constraint("DistanceX", 9, 1, 9, 2, Q("9.503105 mm")),
    Sketcher.Constraint("DistanceY", 16, 2, 16, 1, Q("9.953693 mm")),
    Sketcher.Constraint("DistanceY", 20, 2, 20, 1, Q("6.236527 mm")),
    Sketcher.Constraint("DistanceX", 8, 2, -1, 1, Q("153.445962 mm")),
    Sketcher.Constraint("DistanceY", -1, 1, 18, 2, Q("114.16655 mm")),
])
pocket3 = doc.addObject("PartDesign::Pocket", "Pocket002")
body.addObject(pocket3)
pocket3.Profile = sketch5
pocket3.Length = 2
doc.recompute()

fillet = doc.addObject("PartDesign::Fillet", "Fillet")
body.addObject(fillet)
fillet.Base = (pocket3, edges_at(pocket3, [
    (96.057, 108.813, 1),
    (104.857, 108.813, 1),
    (30.057, 108.813, 1),
    (38.857, 108.813, 1),
    (-35.943, 108.813, 1),
    (-27.143, 108.813, 1),
    (-148.543, -12.587, 1),
    (-148.543, -3.787, 1),
    (-148.543, -78.587, 1),
    (-148.543, -69.787, 1),
    (-148.543, -144.587, 1),
    (-148.543, -135.787, 1),
    (-101.943, 108.813, 1),
    (-93.143, 108.813, 1),
    (-148.543, 53.413, 1),
    (-148.543, 62.213, 1),
]))
fillet.Radius = 2

doc.recompute()
